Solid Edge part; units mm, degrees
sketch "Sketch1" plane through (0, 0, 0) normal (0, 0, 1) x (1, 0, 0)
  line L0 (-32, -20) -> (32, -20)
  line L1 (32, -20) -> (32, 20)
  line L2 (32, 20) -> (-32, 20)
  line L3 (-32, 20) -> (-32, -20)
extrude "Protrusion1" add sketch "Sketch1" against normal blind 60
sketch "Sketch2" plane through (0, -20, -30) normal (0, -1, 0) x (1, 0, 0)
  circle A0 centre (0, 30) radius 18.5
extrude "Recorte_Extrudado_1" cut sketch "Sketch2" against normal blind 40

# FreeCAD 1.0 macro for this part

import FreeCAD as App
import Part
import Sketcher
from FreeCAD import Vector

doc = App.newDocument("Part")
body = doc.addObject("PartDesign::Body", "Body")

# Sketch on XY plane
sketch1 = body.newObject("Sketcher::SketchObject", "Sketch")
sketch1.AttachmentSupport = (doc.getObject("XY_Plane"), [""])
sketch1.MapMode = "FlatFace"
sketch1.addGeometry([
    Part.LineSegment(Vector(-32, 20, 0), Vector(-32, -20, 0)),
    Part.LineSegment(Vector(-32, -20, 0), Vector(32, -20, 0)),
    Part.LineSegment(Vector(32, -20, 0), Vector(32, 20, 0)),
    Part.LineSegment(Vector(32, 20, 0), Vector(-32, 20, 0)),
], False)
sketch1.addConstraint([
    Sketcher.Constraint("Coincident", 0, 2, 1, 1),
    Sketcher.Constraint("Coincident", 1, 2, 2, 1),
    Sketcher.Constraint("Coincident", 2, 2, 3, 1),
    Sketcher.Constraint("Coincident", 3, 2, 0, 1),
    Sketcher.Constraint("Vertical", 0),
    Sketcher.Constraint("Horizontal", 1),
    Sketcher.Constraint("Vertical", 2),
    Sketcher.Constraint("Horizontal", 3),
    Sketcher.Constraint("Symmetric", 0, 2, 2, 2, -1, 1),
    Sketcher.Constraint("DistanceX", 1, 1, 1, 2, 64.0),
    Sketcher.Constraint("DistanceY", 0, 2, 0, 1, 40.0),
])
pad1 = body.newObject("PartDesign::Pad", "Pad")
pad1.Profile = sketch1
pad1.Length = 60
pad1.Reversed = True

# Sketch on XZ plane
sketch2 = body.newObject("Sketcher::SketchObject", "Sketch001")
sketch2.AttachmentSupport = (doc.getObject("XZ_Plane"), [""])
sketch2.MapMode = "FlatFace"
sketch2.AttachmentOffset = App.Placement(Vector(0, 0, 20), App.Rotation())
sketch2.addGeometry(Part.Circle(Vector(0, 0, 0), Vector(0, 0, 1), 18), False)
sketch2.addConstraint([
    Sketcher.Constraint("Coincident", 0, 3, -1, 1),
    Sketcher.Constraint("Diameter", 0, 37.0),
])
pocket1 = body.newObject("PartDesign::Pocket", "Pocket")
pocket1.Profile = sketch2
pocket1.Length = 40

doc.recompute()
